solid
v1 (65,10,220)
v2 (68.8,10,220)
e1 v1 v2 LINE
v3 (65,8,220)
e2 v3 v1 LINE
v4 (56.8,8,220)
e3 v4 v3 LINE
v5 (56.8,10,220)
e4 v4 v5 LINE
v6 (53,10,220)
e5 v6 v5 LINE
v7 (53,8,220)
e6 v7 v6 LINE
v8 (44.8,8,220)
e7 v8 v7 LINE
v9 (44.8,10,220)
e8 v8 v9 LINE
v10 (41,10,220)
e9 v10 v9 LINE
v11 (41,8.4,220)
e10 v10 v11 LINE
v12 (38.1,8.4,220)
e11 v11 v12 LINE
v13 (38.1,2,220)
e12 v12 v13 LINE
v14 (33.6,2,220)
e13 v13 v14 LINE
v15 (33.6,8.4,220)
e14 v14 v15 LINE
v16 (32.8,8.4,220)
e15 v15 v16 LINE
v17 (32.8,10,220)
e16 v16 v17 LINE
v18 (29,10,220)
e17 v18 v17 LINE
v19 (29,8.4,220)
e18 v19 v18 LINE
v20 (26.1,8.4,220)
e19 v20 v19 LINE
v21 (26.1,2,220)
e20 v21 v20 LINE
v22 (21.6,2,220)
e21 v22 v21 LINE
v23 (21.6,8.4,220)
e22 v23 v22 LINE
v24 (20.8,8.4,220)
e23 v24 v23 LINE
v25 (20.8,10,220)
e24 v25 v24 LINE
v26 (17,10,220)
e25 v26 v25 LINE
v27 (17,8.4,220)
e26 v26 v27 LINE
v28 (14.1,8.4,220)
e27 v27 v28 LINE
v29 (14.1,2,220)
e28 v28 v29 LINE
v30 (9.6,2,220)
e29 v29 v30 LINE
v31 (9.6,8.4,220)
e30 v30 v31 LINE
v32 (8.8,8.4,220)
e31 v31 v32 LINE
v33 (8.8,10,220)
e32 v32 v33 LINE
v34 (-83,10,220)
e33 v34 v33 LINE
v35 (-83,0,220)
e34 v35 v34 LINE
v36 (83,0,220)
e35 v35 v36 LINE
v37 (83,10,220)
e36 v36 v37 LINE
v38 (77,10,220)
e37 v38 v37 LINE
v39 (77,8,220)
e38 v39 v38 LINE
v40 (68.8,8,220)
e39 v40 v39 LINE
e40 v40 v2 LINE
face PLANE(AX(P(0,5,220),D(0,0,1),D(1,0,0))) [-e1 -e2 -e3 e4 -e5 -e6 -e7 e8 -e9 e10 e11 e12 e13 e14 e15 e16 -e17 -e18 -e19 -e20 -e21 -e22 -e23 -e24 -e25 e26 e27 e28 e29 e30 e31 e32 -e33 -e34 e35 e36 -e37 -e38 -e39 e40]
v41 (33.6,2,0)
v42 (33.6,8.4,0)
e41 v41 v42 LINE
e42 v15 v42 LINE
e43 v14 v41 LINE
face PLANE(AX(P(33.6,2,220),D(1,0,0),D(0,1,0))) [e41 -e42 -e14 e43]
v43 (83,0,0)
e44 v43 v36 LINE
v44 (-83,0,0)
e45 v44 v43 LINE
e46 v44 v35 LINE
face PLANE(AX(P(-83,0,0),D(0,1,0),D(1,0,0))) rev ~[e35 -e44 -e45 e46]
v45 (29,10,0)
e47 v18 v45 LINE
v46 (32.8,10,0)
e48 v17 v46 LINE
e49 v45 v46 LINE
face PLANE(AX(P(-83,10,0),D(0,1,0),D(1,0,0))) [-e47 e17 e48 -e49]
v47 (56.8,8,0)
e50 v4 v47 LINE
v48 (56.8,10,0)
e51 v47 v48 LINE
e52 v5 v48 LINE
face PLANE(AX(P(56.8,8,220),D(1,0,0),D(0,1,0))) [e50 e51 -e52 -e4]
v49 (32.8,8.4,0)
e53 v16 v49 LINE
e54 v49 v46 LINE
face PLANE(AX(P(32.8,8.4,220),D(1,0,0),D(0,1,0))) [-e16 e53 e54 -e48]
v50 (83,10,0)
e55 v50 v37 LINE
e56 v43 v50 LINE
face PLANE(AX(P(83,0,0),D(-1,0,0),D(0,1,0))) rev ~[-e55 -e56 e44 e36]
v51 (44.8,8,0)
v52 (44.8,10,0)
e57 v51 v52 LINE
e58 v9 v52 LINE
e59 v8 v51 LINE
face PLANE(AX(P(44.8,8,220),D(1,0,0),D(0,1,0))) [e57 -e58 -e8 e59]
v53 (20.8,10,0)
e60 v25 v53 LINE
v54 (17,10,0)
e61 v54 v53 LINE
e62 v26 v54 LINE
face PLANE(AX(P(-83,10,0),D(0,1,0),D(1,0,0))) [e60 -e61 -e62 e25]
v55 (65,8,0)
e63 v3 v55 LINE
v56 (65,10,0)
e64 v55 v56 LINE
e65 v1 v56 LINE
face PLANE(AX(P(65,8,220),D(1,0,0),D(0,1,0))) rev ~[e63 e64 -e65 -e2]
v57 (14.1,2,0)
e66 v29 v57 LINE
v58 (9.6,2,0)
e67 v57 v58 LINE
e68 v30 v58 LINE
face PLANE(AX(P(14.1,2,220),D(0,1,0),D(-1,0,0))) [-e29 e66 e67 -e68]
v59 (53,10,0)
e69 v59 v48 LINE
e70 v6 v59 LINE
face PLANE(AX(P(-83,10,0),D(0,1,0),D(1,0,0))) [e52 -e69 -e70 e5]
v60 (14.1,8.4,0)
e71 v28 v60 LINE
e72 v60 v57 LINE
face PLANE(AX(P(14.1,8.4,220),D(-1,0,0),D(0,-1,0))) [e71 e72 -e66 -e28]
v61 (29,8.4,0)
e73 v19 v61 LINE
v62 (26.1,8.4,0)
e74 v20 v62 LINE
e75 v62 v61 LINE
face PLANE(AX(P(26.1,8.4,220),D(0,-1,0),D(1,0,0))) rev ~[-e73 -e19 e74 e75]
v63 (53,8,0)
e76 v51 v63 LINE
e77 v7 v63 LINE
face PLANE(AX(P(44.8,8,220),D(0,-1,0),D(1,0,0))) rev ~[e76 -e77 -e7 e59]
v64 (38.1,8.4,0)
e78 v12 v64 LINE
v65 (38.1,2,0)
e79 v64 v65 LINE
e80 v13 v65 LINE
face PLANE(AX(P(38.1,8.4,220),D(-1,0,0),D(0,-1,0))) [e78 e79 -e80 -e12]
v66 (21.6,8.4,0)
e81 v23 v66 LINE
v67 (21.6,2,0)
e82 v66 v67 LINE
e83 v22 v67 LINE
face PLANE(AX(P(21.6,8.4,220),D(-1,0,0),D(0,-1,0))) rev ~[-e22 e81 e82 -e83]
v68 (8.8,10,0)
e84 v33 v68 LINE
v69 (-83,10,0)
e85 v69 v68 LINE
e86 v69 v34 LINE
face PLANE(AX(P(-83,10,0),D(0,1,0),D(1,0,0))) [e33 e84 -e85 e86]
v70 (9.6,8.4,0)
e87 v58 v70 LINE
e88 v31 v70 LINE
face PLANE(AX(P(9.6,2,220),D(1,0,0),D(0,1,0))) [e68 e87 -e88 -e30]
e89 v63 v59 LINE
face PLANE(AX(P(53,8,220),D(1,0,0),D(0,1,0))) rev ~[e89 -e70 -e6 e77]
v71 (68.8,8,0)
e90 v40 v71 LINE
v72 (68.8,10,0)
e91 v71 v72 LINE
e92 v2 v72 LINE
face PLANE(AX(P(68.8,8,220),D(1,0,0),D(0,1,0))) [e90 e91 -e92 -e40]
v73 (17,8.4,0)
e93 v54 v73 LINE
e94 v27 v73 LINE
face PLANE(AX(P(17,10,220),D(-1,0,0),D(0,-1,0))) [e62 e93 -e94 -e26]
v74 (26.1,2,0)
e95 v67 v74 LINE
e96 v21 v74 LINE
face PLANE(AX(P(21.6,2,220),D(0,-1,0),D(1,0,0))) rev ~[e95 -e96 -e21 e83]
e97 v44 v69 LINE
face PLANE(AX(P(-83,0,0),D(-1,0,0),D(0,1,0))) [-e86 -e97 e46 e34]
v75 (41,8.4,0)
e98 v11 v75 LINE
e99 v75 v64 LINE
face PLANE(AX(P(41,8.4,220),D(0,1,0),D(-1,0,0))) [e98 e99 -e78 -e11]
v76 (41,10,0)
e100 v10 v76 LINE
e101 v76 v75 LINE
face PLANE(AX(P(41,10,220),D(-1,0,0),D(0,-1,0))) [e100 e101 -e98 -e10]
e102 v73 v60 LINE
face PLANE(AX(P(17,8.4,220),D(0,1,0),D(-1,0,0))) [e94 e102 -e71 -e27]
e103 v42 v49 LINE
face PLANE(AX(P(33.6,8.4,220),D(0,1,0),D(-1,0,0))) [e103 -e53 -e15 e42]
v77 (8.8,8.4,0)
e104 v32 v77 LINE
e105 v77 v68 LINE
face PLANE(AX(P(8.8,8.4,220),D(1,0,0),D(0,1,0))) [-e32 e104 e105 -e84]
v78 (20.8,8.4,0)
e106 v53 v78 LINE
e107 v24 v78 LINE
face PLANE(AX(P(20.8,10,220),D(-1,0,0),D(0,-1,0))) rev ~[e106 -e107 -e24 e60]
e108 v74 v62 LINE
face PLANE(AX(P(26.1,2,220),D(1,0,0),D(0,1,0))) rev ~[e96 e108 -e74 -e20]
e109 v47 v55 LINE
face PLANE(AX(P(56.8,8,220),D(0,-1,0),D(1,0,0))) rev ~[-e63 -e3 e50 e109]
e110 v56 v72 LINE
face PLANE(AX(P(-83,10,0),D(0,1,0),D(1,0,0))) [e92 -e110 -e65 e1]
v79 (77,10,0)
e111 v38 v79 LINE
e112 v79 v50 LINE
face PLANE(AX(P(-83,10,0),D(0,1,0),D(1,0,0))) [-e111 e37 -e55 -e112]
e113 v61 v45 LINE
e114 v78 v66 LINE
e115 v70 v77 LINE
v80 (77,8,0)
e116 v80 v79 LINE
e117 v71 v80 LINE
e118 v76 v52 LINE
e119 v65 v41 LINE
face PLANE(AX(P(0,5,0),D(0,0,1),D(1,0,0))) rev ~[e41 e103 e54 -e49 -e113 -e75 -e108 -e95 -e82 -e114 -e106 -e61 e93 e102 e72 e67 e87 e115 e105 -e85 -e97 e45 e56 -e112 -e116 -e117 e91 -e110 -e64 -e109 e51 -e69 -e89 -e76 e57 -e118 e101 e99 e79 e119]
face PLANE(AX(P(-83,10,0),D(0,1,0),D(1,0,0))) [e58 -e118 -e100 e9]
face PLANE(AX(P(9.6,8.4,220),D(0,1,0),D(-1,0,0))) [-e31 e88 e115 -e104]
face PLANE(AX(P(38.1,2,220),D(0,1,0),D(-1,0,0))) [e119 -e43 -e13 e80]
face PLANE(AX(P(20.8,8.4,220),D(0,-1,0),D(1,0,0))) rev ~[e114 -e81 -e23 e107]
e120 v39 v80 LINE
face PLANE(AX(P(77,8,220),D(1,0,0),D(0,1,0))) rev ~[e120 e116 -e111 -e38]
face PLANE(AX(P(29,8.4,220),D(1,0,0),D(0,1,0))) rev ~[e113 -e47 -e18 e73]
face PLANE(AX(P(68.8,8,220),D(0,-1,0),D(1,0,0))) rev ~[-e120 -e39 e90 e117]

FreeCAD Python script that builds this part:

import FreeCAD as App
import Part
import Sketcher
from FreeCAD import Vector
Q = App.Units.Quantity

doc = App.newDocument("Part")
body = doc.addObject("PartDesign::Body", "Body")

sketch1 = body.newObject("Sketcher::SketchObject", "Sketch")
sketch1.AttachmentSupport = (doc.getObject("XY_Plane"), [""])
sketch1.MapMode = "FlatFace"
sketch1.addGeometry(Part.LineSegment(Vector(-83, 10, 0), Vector(-83, 0, 0)), False)
sketch1.addGeometry(Part.LineSegment(Vector(-83, 0, 0), Vector(83, 0, 0)), False)
sketch1.addGeometry(Part.LineSegment(Vector(83, 0, 0), Vector(83, 10, 0)), False)
sketch1.addGeometry(Part.LineSegment(Vector(83, 10, 0), Vector(-83, 10, 0)), False)
sketch1.addConstraint(Sketcher.Constraint("Coincident", 0, 2, 1, 1))
sketch1.addConstraint(Sketcher.Constraint("Coincident", 1, 2, 2, 1))
sketch1.addConstraint(Sketcher.Constraint("Coincident", 2, 2, 3, 1))
sketch1.addConstraint(Sketcher.Constraint("Coincident", 3, 2, 0, 1))
sketch1.addConstraint(Sketcher.Constraint("Vertical", 0))
sketch1.addConstraint(Sketcher.Constraint("Horizontal", 1))
sketch1.addConstraint(Sketcher.Constraint("Vertical", 2))
sketch1.addConstraint(Sketcher.Constraint("Horizontal", 3))
sketch1.addConstraint(Sketcher.Constraint("Symmetric", 0, 2, 1, 2, -1, 1))
sketch1.addConstraint(Sketcher.Constraint("DistanceX", 1, 1, 1, 2, Q("166 mm")))
sketch1.addConstraint(Sketcher.Constraint("DistanceY", 0, 2, 0, 1, Q("10 mm")))
pad1 = body.newObject("PartDesign::Pad", "Pad")
pad1.Profile = sketch1
pad1.Length = 220

sketch2 = body.newObject("Sketcher::SketchObject", "Sketch001")
sketch2.AttachmentSupport = (doc.getObject("XY_Plane"), [""])
sketch2.MapMode = "FlatFace"
sketch2.AttachmentOffset = App.Placement(Vector(0, 0, 220), App.Rotation())
sketch2.addGeometry(Part.LineSegment(Vector(68.8, 10, 0), Vector(68.8, 8, 0)), False)
sketch2.addGeometry(Part.LineSegment(Vector(68.8, 8, 0), Vector(77, 8, 0)), False)
sketch2.addGeometry(Part.LineSegment(Vector(77, 8, 0), Vector(77, 10, 0)), False)
sketch2.addGeometry(Part.LineSegment(Vector(77, 10, 0), Vector(68.8, 10, 0)), False)
sketch2.addGeometry(Part.LineSegment(Vector(56.8, 10, 0), Vector(56.8, 8, 0)), False)
sketch2.addGeometry(Part.LineSegment(Vector(56.8, 8, 0), Vector(65, 8, 0)), False)
sketch2.addGeometry(Part.LineSegment(Vector(65, 8, 0), Vector(65, 10, 0)), False)
sketch2.addGeometry(Part.LineSegment(Vector(65, 10, 0), Vector(56.8, 10, 0)), False)
sketch2.addGeometry(Part.LineSegment(Vector(41, 10, 0), Vector(32.8, 10, 0)), False)
sketch2.addGeometry(Part.LineSegment(Vector(32.8, 10, 0), Vector(32.8, 8.4, 0)), False)
sketch2.addGeometry(Part.LineSegment(Vector(32.8, 8.4, 0), Vector(33.6, 8.4, 0)), False)
sketch2.addGeometry(Part.LineSegment(Vector(33.6, 8.4, 0), Vector(33.6, 2, 0)), False)
sketch2.addGeometry(Part.LineSegment(Vector(33.6, 2, 0), Vector(38.1, 2, 0)), False)
sketch2.addGeometry(Part.LineSegment(Vector(38.1, 2, 0), Vector(38.1, 8.4, 0)), False)
sketch2.addGeometry(Part.LineSegment(Vector(38.1, 8.4, 0), Vector(41, 8.4, 0)), False)
sketch2.addGeometry(Part.LineSegment(Vector(41, 8.4, 0), Vector(41, 10, 0)), False)
sketch2.addGeometry(Part.LineSegment(Vector(44.8, 10, 0), Vector(44.8, 8, 0)), False)
sketch2.addGeometry(Part.LineSegment(Vector(44.8, 8, 0), Vector(53, 8, 0)), False)
sketch2.addGeometry(Part.LineSegment(Vector(53, 8, 0), Vector(53, 10, 0)), False)
sketch2.addGeometry(Part.LineSegment(Vector(53, 10, 0), Vector(44.8, 10, 0)), False)
sketch2.addGeometry(Part.LineSegment(Vector(20.8, 10, 0), Vector(20.8, 8.4, 0)), False)
sketch2.addGeometry(Part.LineSegment(Vector(20.8, 8.4, 0), Vector(21.6, 8.4, 0)), False)
sketch2.addGeometry(Part.LineSegment(Vector(21.6, 8.4, 0), Vector(21.6, 2, 0)), False)
sketch2.addGeometry(Part.LineSegment(Vector(21.6, 2, 0), Vector(26.1, 2, 0)), False)
sketch2.addGeometry(Part.LineSegment(Vector(26.1, 2, 0), Vector(26.1, 8.4, 0)), False)
sketch2.addGeometry(Part.LineSegment(Vector(26.1, 8.4, 0), Vector(29, 8.4, 0)), False)
sketch2.addGeometry(Part.LineSegment(Vector(29, 8.4, 0), Vector(29, 10, 0)), False)
sketch2.addGeometry(Part.LineSegment(Vector(29, 10, 0), Vector(20.8, 10, 0)), False)
sketch2.addGeometry(Part.LineSegment(Vector(17, 8.4, 0), Vector(17, 10, 0)), False)
sketch2.addGeometry(Part.LineSegment(Vector(17, 10, 0), Vector(8.8, 10, 0)), False)
sketch2.addGeometry(Part.LineSegment(Vector(8.8, 10, 0), Vector(8.8, 8.4, 0)), False)
sketch2.addGeometry(Part.LineSegment(Vector(8.8, 8.4, 0), Vector(9.6, 8.4, 0)), False)
sketch2.addGeometry(Part.LineSegment(Vector(9.6, 8.4, 0), Vector(9.6, 2, 0)), False)
sketch2.addGeometry(Part.LineSegment(Vector(9.6, 2, 0), Vector(14.1, 2, 0)), False)
sketch2.addGeometry(Part.LineSegment(Vector(14.1, 2, 0), Vector(14.1, 8.4, 0)), False)
sketch2.addGeometry(Part.LineSegment(Vector(14.1, 8.4, 0), Vector(17, 8.4, 0)), False)
sketch2.addConstraint(Sketcher.Constraint("Coincident", 0, 2, 1, 1))
sketch2.addConstraint(Sketcher.Constraint("Coincident", 1, 2, 2, 1))
sketch2.addConstraint(Sketcher.Constraint("Coincident", 2, 2, 3, 1))
sketch2.addConstraint(Sketcher.Constraint("Coincident", 3, 2, 0, 1))
sketch2.addConstraint(Sketcher.Constraint("Coincident", 4, 2, 5, 1))
sketch2.addConstraint(Sketcher.Constraint("Coincident", 5, 2, 6, 1))
sketch2.addConstraint(Sketcher.Constraint("Coincident", 6, 2, 7, 1))
sketch2.addConstraint(Sketcher.Constraint("Coincident", 7, 2, 4, 1))
sketch2.addConstraint(Sketcher.Constraint("Coincident", 8, 2, 9, 1))
sketch2.addConstraint(Sketcher.Constraint("Coincident", 9, 2, 10, 1))
sketch2.addConstraint(Sketcher.Constraint("Coincident", 10, 2, 11, 1))
sketch2.addConstraint(Sketcher.Constraint("Coincident", 11, 2, 12, 1))
sketch2.addConstraint(Sketcher.Constraint("Coincident", 12, 2, 13, 1))
sketch2.addConstraint(Sketcher.Constraint("Coincident", 13, 2, 14, 1))
sketch2.addConstraint(Sketcher.Constraint("Coincident", 14, 2, 15, 1))
sketch2.addConstraint(Sketcher.Constraint("Coincident", 15, 2, 8, 1))
sketch2.addConstraint(Sketcher.Constraint("Coincident", 16, 2, 17, 1))
sketch2.addConstraint(Sketcher.Constraint("Coincident", 17, 2, 18, 1))
sketch2.addConstraint(Sketcher.Constraint("Coincident", 18, 2, 19, 1))
sketch2.addConstraint(Sketcher.Constraint("Coincident", 19, 2, 16, 1))
sketch2.addConstraint(Sketcher.Constraint("Coincident", 20, 2, 21, 1))
sketch2.addConstraint(Sketcher.Constraint("Coincident", 21, 2, 22, 1))
sketch2.addConstraint(Sketcher.Constraint("Coincident", 22, 2, 23, 1))
sketch2.addConstraint(Sketcher.Constraint("Coincident", 23, 2, 24, 1))
sketch2.addConstraint(Sketcher.Constraint("Coincident", 24, 2, 25, 1))
sketch2.addConstraint(Sketcher.Constraint("Coincident", 25, 2, 26, 1))
sketch2.addConstraint(Sketcher.Constraint("Coincident", 26, 2, 27, 1))
sketch2.addConstraint(Sketcher.Constraint("Coincident", 27, 2, 20, 1))
sketch2.addConstraint(Sketcher.Constraint("Coincident", 28, 2, 29, 1))
sketch2.addConstraint(Sketcher.Constraint("Coincident", 29, 2, 30, 1))
sketch2.addConstraint(Sketcher.Constraint("Coincident", 30, 2, 31, 1))
sketch2.addConstraint(Sketcher.Constraint("Coincident", 31, 2, 32, 1))
sketch2.addConstraint(Sketcher.Constraint("Coincident", 32, 2, 33, 1))
sketch2.addConstraint(Sketcher.Constraint("Coincident", 33, 2, 34, 1))
sketch2.addConstraint(Sketcher.Constraint("Coincident", 34, 2, 35, 1))
sketch2.addConstraint(Sketcher.Constraint("Coincident", 35, 2, 28, 1))
sketch2.addConstraint(Sketcher.Constraint("Vertical", 0))
sketch2.addConstraint(Sketcher.Constraint("Horizontal", 1))
sketch2.addConstraint(Sketcher.Constraint("Vertical", 2))
sketch2.addConstraint(Sketcher.Constraint("Horizontal", 3))
sketch2.addConstraint(Sketcher.Constraint("Vertical", 4))
sketch2.addConstraint(Sketcher.Constraint("Horizontal", 5))
sketch2.addConstraint(Sketcher.Constraint("Vertical", 6))
sketch2.addConstraint(Sketcher.Constraint("Horizontal", 7))
sketch2.addConstraint(Sketcher.Constraint("Horizontal", 8))
sketch2.addConstraint(Sketcher.Constraint("Vertical", 9))
sketch2.addConstraint(Sketcher.Constraint("Horizontal", 10))
sketch2.addConstraint(Sketcher.Constraint("Vertical", 11))
sketch2.addConstraint(Sketcher.Constraint("Horizontal", 12))
sketch2.addConstraint(Sketcher.Constraint("Vertical", 13))
sketch2.addConstraint(Sketcher.Constraint("Horizontal", 14))
sketch2.addConstraint(Sketcher.Constraint("Vertical", 15))
sketch2.addConstraint(Sketcher.Constraint("Vertical", 16))
sketch2.addConstraint(Sketcher.Constraint("Horizontal", 17))
sketch2.addConstraint(Sketcher.Constraint("Vertical", 18))
sketch2.addConstraint(Sketcher.Constraint("Horizontal", 19))
sketch2.addConstraint(Sketcher.Constraint("Vertical", 20))
sketch2.addConstraint(Sketcher.Constraint("Horizontal", 21))
sketch2.addConstraint(Sketcher.Constraint("Vertical", 22))
sketch2.addConstraint(Sketcher.Constraint("Horizontal", 23))
sketch2.addConstraint(Sketcher.Constraint("Vertical", 24))
sketch2.addConstraint(Sketcher.Constraint("Horizontal", 25))
sketch2.addConstraint(Sketcher.Constraint("Vertical", 26))
sketch2.addConstraint(Sketcher.Constraint("Horizontal", 27))
sketch2.addConstraint(Sketcher.Constraint("Vertical", 28))
sketch2.addConstraint(Sketcher.Constraint("Horizontal", 29))
sketch2.addConstraint(Sketcher.Constraint("Vertical", 30))
sketch2.addConstraint(Sketcher.Constraint("Horizontal", 31))
sketch2.addConstraint(Sketcher.Constraint("Vertical", 32))
sketch2.addConstraint(Sketcher.Constraint("Horizontal", 33))
sketch2.addConstraint(Sketcher.Constraint("Vertical", 34))
sketch2.addConstraint(Sketcher.Constraint("Horizontal", 35))
sketch2.addConstraint(Sketcher.Constraint("Horizontal", 1, 2, 4, 2))
sketch2.addConstraint(Sketcher.Constraint("Horizontal", 3, 2, 6, 2))
sketch2.addConstraint(Sketcher.Constraint("Horizontal", 7, 2, 8, 2))
sketch2.addConstraint(Sketcher.Constraint("Horizontal", 10, 2, 13, 2))
sketch2.addConstraint(Sketcher.Constraint("Horizontal", 5, 2, 16, 2))
sketch2.addConstraint(Sketcher.Constraint("Horizontal", 15, 2, 18, 2))
sketch2.addConstraint(Sketcher.Constraint("Horizontal", 14, 2, 20, 2))
sketch2.addConstraint(Sketcher.Constraint("Horizontal", 12, 2, 22, 2))
sketch2.addConstraint(Sketcher.Constraint("Horizontal", 21, 2, 24, 2))
sketch2.addConstraint(Sketcher.Constraint("Horizontal", 19, 2, 26, 2))
sketch2.addConstraint(Sketcher.Constraint("Horizontal", 27, 2, 28, 2))
sketch2.addConstraint(Sketcher.Constraint("Horizontal", 25, 2, 30, 2))
sketch2.addConstraint(Sketcher.Constraint("Horizontal", 23, 2, 32, 2))
sketch2.addConstraint(Sketcher.Constraint("Horizontal", 31, 2, 34, 2))
sketch2.addConstraint(Sketcher.Constraint("Equal", 3, 5))
sketch2.addConstraint(Sketcher.Constraint("Equal", 7, 8))
sketch2.addConstraint(Sketcher.Constraint("Equal", 8, 17))
sketch2.addConstraint(Sketcher.Constraint("Equal", 10, 21))
sketch2.addConstraint(Sketcher.Constraint("Equal", 12, 23))
sketch2.addConstraint(Sketcher.Constraint("Equal", 14, 25))
sketch2.addConstraint(Sketcher.Constraint("Equal", 27, 29))
sketch2.addConstraint(Sketcher.Constraint("Equal", 21, 31))
sketch2.addConstraint(Sketcher.Constraint("Equal", 23, 33))
sketch2.addConstraint(Sketcher.Constraint("DistanceY", 0, 2, 0, 1, Q("2 mm")))
sketch2.addConstraint(Sketcher.Constraint("DistanceX", 1, 1, 1, 2, Q("8.2 mm")))
sketch2.addConstraint(Sketcher.Constraint("DistanceX", 10, 1, 10, 2, Q("0.8 mm")))
sketch2.addConstraint(Sketcher.Constraint("DistanceX", 12, 1, 12, 2, Q("4.5 mm")))
sketch2.addConstraint(Sketcher.Constraint("DistanceY", 9, 2, 9, 1, Q("1.6 mm")))
sketch2.addConstraint(Sketcher.Constraint("DistanceY", 11, 2, 11, 1, Q("6.4 mm")))
sketch2.addConstraint(Sketcher.Constraint("DistanceY", -1, 1, 0, 2, Q("8 mm")))
sketch2.addConstraint(Sketcher.Constraint("DistanceX", -1, 1, 1, 2, Q("77 mm")))
sketch2.addConstraint(Sketcher.Constraint("DistanceX", -1, 1, 5, 2, Q("65 mm")))
sketch2.addConstraint(Sketcher.Constraint("DistanceX", -1, 1, 14, 2, Q("41 mm")))
sketch2.addConstraint(Sketcher.Constraint("DistanceX", -1, 1, 17, 2, Q("53 mm")))
sketch2.addConstraint(Sketcher.Constraint("DistanceX", -1, 1, 25, 2, Q("29 mm")))
sketch2.addConstraint(Sketcher.Constraint("DistanceX", -1, 1, 28, 2, Q("17 mm")))
pocket1 = body.newObject("PartDesign::Pocket", "Pocket")
pocket1.Profile = sketch2
pocket1.Type = "ThroughAll"

doc.recompute()
